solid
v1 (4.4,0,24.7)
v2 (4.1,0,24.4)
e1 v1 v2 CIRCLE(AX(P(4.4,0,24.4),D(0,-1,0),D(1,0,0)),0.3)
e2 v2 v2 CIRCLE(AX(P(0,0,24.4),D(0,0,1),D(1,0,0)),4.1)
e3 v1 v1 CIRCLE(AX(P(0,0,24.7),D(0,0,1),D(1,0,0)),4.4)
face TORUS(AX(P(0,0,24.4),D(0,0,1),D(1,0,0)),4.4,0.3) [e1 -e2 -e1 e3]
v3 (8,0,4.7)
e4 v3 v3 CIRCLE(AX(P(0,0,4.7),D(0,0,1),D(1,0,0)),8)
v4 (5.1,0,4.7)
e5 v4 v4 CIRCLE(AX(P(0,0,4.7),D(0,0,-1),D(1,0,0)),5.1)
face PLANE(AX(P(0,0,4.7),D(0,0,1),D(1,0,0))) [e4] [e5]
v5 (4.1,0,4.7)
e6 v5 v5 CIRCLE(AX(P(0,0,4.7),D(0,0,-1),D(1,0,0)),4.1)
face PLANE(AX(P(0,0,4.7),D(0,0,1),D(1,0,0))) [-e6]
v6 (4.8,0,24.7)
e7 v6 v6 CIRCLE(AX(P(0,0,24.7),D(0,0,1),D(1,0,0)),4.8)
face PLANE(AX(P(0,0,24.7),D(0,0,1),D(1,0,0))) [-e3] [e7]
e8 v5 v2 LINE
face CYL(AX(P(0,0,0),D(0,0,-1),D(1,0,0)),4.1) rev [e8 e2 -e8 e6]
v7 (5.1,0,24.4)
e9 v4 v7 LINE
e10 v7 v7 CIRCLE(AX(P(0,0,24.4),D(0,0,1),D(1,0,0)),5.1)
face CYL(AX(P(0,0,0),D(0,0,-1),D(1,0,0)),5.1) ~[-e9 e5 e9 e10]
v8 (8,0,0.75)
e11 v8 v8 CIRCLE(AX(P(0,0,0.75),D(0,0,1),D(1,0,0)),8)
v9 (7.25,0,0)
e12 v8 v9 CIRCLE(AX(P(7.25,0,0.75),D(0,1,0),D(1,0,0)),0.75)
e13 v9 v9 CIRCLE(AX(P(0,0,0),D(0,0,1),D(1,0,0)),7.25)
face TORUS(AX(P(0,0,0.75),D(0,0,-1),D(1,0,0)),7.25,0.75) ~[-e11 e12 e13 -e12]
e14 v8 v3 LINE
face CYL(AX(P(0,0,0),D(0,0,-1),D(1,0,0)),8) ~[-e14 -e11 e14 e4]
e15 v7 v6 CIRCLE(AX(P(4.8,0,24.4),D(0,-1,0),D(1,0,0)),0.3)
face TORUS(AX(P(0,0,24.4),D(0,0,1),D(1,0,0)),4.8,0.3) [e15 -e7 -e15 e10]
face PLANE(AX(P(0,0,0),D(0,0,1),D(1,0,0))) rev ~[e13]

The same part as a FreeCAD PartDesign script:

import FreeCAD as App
import Part
import Sketcher
from FreeCAD import Vector
Q = App.Units.Quantity


def edges_at(feature, points):
    """Names of the edges that pass closest to the given points."""
    edges = feature.Shape.Edges
    near = lambda p: min(range(len(edges)), key=lambda i: edges[i].distToShape(Part.Vertex(*p))[0])
    return sorted({f"Edge{near(p) + 1}" for p in points})

doc = App.newDocument("Part")
body = doc.addObject("PartDesign::Body", "Body")

# Sketch on XY plane
sketch1 = body.newObject("Sketcher::SketchObject", "Sketch")
sketch1.AttachmentSupport = (doc.getObject("XY_Plane"), [""])
sketch1.MapMode = "FlatFace"
sketch1.addGeometry(Part.Circle(Vector(0, 0, 0), Vector(0, 0, 1), 8), False)
sketch1.addConstraint(Sketcher.Constraint("Coincident", 0, 3, -1, 1))
sketch1.addConstraint(Sketcher.Constraint("Diameter", 0, Q("16 mm")))
pad1 = body.newObject("PartDesign::Pad", "Pad")
pad1.Profile = sketch1
pad1.Length = 4.7

# Sketch on XY plane
sketch2 = body.newObject("Sketcher::SketchObject", "Sketch001")
sketch2.AttachmentSupport = (doc.getObject("XY_Plane"), [""])
sketch2.MapMode = "FlatFace"
sketch2.addGeometry(Part.Circle(Vector(0, 0, 0), Vector(0, 0, 1), 5.1), False)
sketch2.addGeometry(Part.Circle(Vector(0, 0, 0), Vector(0, 0, 1), 4.1), False)
sketch2.addConstraint(Sketcher.Constraint("Coincident", 0, 3, -1, 1))
sketch2.addConstraint(Sketcher.Constraint("Coincident", 1, 3, -1, 1))
sketch2.addConstraint(Sketcher.Constraint("Diameter", 0, Q("10.2 mm")))
sketch2.addConstraint(Sketcher.Constraint("Diameter", 1, Q("8.2 mm")))
pad2 = body.newObject("PartDesign::Pad", "Pad001")
pad2.Profile = sketch2
pad2.Length = 24.7
doc.recompute()

fillet = body.newObject("PartDesign::Fillet", "Fillet")
fillet.Base = (pad2, edges_at(pad2, [(-5.1, 0, 24.7), (-4.1, 0, 24.7)]))
fillet.Radius = 0.3
doc.recompute()

fillet2 = body.newObject("PartDesign::Fillet", "Fillet001")
fillet2.Base = (fillet, edges_at(fillet, [(-8, 0, 0)]))
fillet2.Radius = 0.75

doc.recompute()
